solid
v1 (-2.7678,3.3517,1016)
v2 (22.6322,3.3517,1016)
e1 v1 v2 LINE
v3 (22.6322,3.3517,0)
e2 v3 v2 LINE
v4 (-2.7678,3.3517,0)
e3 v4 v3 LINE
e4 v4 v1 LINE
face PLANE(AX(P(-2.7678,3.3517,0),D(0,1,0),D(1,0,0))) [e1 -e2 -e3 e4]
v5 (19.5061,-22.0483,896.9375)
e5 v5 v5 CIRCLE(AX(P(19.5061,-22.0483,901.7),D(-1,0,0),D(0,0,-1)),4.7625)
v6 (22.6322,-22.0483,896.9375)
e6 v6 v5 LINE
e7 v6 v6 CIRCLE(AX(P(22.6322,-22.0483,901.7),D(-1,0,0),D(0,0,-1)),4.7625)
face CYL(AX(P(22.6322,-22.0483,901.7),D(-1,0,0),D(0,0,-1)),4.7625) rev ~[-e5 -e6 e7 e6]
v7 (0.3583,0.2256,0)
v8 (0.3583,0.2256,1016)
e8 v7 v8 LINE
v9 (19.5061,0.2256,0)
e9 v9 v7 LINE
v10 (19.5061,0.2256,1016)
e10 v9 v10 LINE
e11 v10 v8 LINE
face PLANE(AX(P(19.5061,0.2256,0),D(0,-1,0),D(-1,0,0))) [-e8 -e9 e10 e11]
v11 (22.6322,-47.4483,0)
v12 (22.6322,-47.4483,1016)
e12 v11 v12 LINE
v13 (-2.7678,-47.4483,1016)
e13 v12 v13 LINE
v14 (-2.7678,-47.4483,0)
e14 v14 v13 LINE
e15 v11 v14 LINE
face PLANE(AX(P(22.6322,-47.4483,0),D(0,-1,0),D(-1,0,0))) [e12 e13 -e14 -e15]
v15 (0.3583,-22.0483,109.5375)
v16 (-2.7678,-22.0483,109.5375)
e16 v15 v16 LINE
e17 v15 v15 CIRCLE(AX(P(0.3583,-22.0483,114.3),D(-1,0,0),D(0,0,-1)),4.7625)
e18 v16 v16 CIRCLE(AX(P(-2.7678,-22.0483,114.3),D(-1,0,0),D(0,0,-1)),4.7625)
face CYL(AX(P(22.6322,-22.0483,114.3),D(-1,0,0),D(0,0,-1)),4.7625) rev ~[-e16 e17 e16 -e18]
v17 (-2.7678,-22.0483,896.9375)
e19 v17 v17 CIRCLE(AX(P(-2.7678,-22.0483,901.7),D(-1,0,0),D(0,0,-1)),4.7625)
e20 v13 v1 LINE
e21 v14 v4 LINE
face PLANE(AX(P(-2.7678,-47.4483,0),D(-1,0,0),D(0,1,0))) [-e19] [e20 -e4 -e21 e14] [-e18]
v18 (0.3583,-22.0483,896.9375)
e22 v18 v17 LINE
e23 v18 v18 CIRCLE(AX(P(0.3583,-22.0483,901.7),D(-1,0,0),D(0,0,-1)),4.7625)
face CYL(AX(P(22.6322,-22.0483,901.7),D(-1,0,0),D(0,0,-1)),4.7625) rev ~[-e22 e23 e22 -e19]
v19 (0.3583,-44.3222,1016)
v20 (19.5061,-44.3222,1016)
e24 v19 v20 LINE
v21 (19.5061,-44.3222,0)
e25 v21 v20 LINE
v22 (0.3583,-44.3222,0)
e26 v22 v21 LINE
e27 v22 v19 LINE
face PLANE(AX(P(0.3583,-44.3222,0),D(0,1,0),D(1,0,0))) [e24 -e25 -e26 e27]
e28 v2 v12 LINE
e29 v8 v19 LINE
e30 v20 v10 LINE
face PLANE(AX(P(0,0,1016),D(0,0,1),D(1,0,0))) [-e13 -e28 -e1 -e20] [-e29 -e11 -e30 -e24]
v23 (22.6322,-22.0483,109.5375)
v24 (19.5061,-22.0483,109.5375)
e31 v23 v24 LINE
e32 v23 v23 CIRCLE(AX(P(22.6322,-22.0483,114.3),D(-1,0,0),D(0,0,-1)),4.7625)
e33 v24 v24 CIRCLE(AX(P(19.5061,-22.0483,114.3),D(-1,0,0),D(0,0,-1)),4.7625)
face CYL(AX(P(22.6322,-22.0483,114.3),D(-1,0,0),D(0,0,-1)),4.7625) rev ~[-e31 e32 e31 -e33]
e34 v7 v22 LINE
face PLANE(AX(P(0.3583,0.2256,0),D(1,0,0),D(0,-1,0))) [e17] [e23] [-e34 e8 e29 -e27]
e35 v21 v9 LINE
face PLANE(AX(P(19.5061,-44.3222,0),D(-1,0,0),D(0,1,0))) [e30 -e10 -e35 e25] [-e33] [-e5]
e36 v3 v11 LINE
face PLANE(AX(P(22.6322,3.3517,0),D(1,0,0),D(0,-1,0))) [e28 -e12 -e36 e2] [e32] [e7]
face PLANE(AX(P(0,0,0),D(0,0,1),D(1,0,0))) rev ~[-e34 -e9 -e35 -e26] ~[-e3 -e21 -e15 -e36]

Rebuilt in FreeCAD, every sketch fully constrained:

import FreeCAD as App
import Part
import Sketcher

V = App.Vector
Q = App.Units.Quantity


def add_polygon(sketch, points):
    """Adds a closed chain of lines whose ends are joined by coincident constraints."""
    first, n = sketch.GeometryCount, len(points)
    for a, b in zip(points, points[1:] + points[:1]):
        sketch.addGeometry(Part.LineSegment(App.Vector(*a, 0), App.Vector(*b, 0)), False)
    for i in range(n):
        sketch.addConstraint(Sketcher.Constraint("Coincident", first + i, 2, first + (i + 1) % n, 1))

doc = App.newDocument("Part")
params = doc.addObject("Spreadsheet::Sheet", "Params")
for row, (alias, value) in enumerate([
    ("sketch1_width", "1 in"),
    ("sketch1_height", "2 in"),
    ("pad1_length", "40 in"),
    ("sketch2_diameter", "0.375 in"),
    ("hole_diameter", "0.375 in"),
], start=1):
    params.set(f"A{row}", alias)
    params.set(f"B{row}", "=" + value)
    params.setAlias(f"B{row}", alias)

body = doc.addObject("PartDesign::Body", "Body")

# Sketch on XY plane
sketch1 = doc.addObject("Sketcher::SketchObject", "Sketch")
body.addObject(sketch1)
sketch1.AttachmentSupport = (doc.XY_Plane, [""])
sketch1.MapMode = "FlatFace"
add_polygon(sketch1, [(23, 3), (-3, 3), (-3, -47), (23, -47)])  # lines 0-3
add_polygon(sketch1, [(0, 0), (20, 0), (20, -44), (0, -44)])  # lines 4-7
sketch1.addConstraint([
    Sketcher.Constraint("Horizontal", 0),
    Sketcher.Constraint("Vertical", 1),
    Sketcher.Constraint("Horizontal", 2),
    Sketcher.Constraint("Vertical", 3),
    Sketcher.Constraint("Horizontal", 4),
    Sketcher.Constraint("Vertical", 5),
    Sketcher.Constraint("Horizontal", 6),
    Sketcher.Constraint("Vertical", 7),
    Sketcher.Constraint("DistanceX", 0, 2, 0, 1, Q("1 in")),
    Sketcher.Constraint("DistanceY", 1, 2, 1, 1, Q("2 in")),
    Sketcher.Constraint("DistanceX", 4, 1, 4, 2, 19.1478),
    Sketcher.Constraint("DistanceY", 5, 2, 5, 1, 44.5478),
    Sketcher.Constraint("DistanceX", -1, 1, 6, 2, Q("0.0141 in")),
    Sketcher.Constraint("DistanceX", 0, 2, -1, 1, 2.7678),
    Sketcher.Constraint("DistanceY", -1, 1, 0, 2, 3.3517),
    Sketcher.Constraint("DistanceY", -1, 1, 4, 2, 0.2256),
])
sketch1.setExpression("Constraints[16]", "Params.sketch1_width")
sketch1.setExpression("Constraints[17]", "Params.sketch1_height")
pad1 = doc.addObject("PartDesign::Pad", "Pad")
body.addObject(pad1)
pad1.Profile = sketch1
pad1.setExpression("Length", "Params.pad1_length")

# Sketch on YZ plane
sketch2 = doc.addObject("Sketcher::SketchObject", "Sketch001")
body.addObject(sketch2)
sketch2.AttachmentSupport = (doc.YZ_Plane, [""])
sketch2.MapMode = "FlatFace"
sketch2.AttachmentOffset = App.Placement(V(0, 0, 22.6322), App.Rotation())
sketch2.addGeometry([
    Part.Circle(V(-22, 901.7, 0), V(0, 0, 1), 4.8),
    Part.Circle(V(-22, 114.3, 0), V(0, 0, 1), 4.8),
], False)
sketch2.addConstraint([
    Sketcher.Constraint("Equal", 0, 1),
    Sketcher.Constraint("Vertical", 0, 3, 1, 3),
    Sketcher.Constraint("Diameter", 0, Q("0.375 in")),
    Sketcher.Constraint("DistanceY", 1, 3, 0, 3, Q("31 in")),
    Sketcher.Constraint("DistanceY", -1, 1, 0, 3, Q("35.5 in")),
    Sketcher.Constraint("DistanceX", 0, 3, -1, 1, 22.0483),
])
sketch2.setExpression("Constraints[2]", "Params.sketch2_diameter")
doc.recompute()
hole = doc.addObject("PartDesign::Hole", "Hole")
body.addObject(hole)
hole.Profile = sketch2
hole.ThreadType = "None"
hole.setExpression("Diameter", "Params.hole_diameter")
hole.DepthType = "ThroughAll"

doc.recompute()
